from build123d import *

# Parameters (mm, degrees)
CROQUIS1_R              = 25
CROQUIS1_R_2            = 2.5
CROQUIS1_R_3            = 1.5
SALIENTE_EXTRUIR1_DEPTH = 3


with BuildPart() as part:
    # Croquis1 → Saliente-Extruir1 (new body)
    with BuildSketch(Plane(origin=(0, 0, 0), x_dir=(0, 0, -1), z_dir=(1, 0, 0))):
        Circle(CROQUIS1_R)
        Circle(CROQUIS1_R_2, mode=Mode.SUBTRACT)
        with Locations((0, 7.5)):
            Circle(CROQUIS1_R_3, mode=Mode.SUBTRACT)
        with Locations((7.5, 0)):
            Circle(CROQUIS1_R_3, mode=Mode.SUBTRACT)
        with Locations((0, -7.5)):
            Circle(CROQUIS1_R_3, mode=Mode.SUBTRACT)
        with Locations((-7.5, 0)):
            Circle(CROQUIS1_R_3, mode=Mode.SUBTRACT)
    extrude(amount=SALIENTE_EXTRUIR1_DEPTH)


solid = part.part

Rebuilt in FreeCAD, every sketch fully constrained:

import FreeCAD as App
import Part
import Sketcher

V = App.Vector

doc = App.newDocument("Part")
body = doc.addObject("PartDesign::Body", "Body")

# Sketch on YZ plane
sketch1 = body.newObject("Sketcher::SketchObject", "Sketch")
sketch1.AttachmentSupport = (doc.getObject("YZ_Plane"), [""])
sketch1.MapMode = "FlatFace"
sketch1.addGeometry(Part.Circle(V(0, 0, 0), V(0, 0, 1), 25), False)
sketch1.addGeometry(Part.Circle(V(-7.5, 0, 0), V(0, 0, 1), 1.5), False)
sketch1.addGeometry(Part.Circle(V(0, 7.5, 0), V(0, 0, 1), 1.5), False)
sketch1.addGeometry(Part.Circle(V(0, 0, 0), V(0, 0, 1), 2.5), False)
sketch1.addGeometry(Part.Circle(V(0, -7.5, 0), V(0, 0, 1), 1.5), False)
sketch1.addGeometry(Part.Circle(V(7.5, 0, 0), V(0, 0, 1), 1.5), False)
sketch1.addConstraint(Sketcher.Constraint("Coincident", 0, 3, -1, 1))
sketch1.addConstraint(Sketcher.Constraint("Coincident", 3, 3, -1, 1))
sketch1.addConstraint(Sketcher.Constraint("Equal", 1, 2))
sketch1.addConstraint(Sketcher.Constraint("Equal", 2, 4))
sketch1.addConstraint(Sketcher.Constraint("Equal", 4, 5))
sketch1.addConstraint(Sketcher.Constraint("Symmetric", 2, 3, 4, 3, -1, 1))
sketch1.addConstraint(Sketcher.Constraint("Symmetric", 1, 3, 5, 3, -1, 1))
sketch1.addConstraint(Sketcher.Constraint("PointOnObject", 1, 3, -1))
sketch1.addConstraint(Sketcher.Constraint("PointOnObject", 2, 3, -2))
sketch1.addConstraint(Sketcher.Constraint("Diameter", 0, 50.0))
sketch1.addConstraint(Sketcher.Constraint("Diameter", 1, 3.0))
sketch1.addConstraint(Sketcher.Constraint("Diameter", 3, 5.0))
sketch1.addConstraint(Sketcher.Constraint("DistanceY", 4, 3, 2, 3, 15.0))
sketch1.addConstraint(Sketcher.Constraint("DistanceX", 1, 3, 5, 3, 15.0))
pad1 = body.newObject("PartDesign::Pad", "Pad")
pad1.Profile = sketch1
pad1.Length = 3

doc.recompute()
